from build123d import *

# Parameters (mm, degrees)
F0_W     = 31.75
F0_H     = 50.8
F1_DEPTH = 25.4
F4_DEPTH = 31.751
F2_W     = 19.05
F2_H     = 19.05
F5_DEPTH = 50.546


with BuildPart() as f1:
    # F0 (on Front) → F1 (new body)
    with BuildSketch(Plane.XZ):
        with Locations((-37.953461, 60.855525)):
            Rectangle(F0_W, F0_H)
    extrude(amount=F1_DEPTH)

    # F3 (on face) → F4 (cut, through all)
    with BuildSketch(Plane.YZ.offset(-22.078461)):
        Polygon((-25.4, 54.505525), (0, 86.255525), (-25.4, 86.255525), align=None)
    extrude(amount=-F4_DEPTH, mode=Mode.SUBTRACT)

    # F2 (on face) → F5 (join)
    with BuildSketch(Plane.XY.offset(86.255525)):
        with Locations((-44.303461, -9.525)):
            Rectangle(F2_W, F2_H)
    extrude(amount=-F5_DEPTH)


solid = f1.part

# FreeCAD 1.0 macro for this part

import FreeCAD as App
import Part
import Sketcher
Q = App.Units.Quantity

doc = App.newDocument("Part")
params = doc.addObject("Spreadsheet::Sheet", "Params")
for row, (alias, value) in enumerate([
    ("sketch1_height", "2 in"),
    ("sketch1_width", "1.25 in"),
    ("pad1_length", "1 in"),
    ("sketch2_width", "1 in"),
    ("sketch2_height", "1.25 in"),
    ("sketch3_width", "0.75 in"),
    ("pad2_length", "1.99 in"),
], start=1):
    params.set(f"A{row}", alias)
    params.set(f"B{row}", "=" + value)
    params.setAlias(f"B{row}", alias)

body = doc.addObject("PartDesign::Body", "Body")

# Sketch on XZ plane
sketch1 = doc.addObject("Sketcher::SketchObject", "Sketch")
body.addObject(sketch1)
sketch1.AttachmentSupport = (doc.XZ_Plane, [""])
sketch1.MapMode = "FlatFace"
sketch1.addGeometry([
    Part.LineSegment(App.Vector(-53.828461, 86.255525, 0), App.Vector(-53.828461, 35.455525, 0)),
    Part.LineSegment(App.Vector(-53.828461, 35.455525, 0), App.Vector(-22.078461, 35.455525, 0)),
    Part.LineSegment(App.Vector(-22.078461, 35.455525, 0), App.Vector(-22.078461, 86.255525, 0)),
    Part.LineSegment(App.Vector(-22.078461, 86.255525, 0), App.Vector(-53.828461, 86.255525, 0)),
], False)
sketch1.addConstraint([
    Sketcher.Constraint("Coincident", 0, 2, 1, 1),
    Sketcher.Constraint("Coincident", 1, 2, 2, 1),
    Sketcher.Constraint("Coincident", 2, 2, 3, 1),
    Sketcher.Constraint("Coincident", 3, 2, 0, 1),
    Sketcher.Constraint("Vertical", 0),
    Sketcher.Constraint("Horizontal", 1),
    Sketcher.Constraint("Vertical", 2),
    Sketcher.Constraint("Horizontal", 3),
    Sketcher.Constraint("DistanceY", 0, 2, 0, 1, Q("2 in")),
    Sketcher.Constraint("DistanceX", 1, 1, 1, 2, Q("1.25 in")),
    Sketcher.Constraint("DistanceX", 0, 2, -1, 1, 53.828461),
    Sketcher.Constraint("DistanceY", -1, 1, 0, 2, 35.455525),
])
sketch1.setExpression("Constraints[8]", "Params.sketch1_height")
sketch1.setExpression("Constraints[9]", "Params.sketch1_width")
pad1 = doc.addObject("PartDesign::Pad", "Pad")
body.addObject(pad1)
pad1.Profile = sketch1
pad1.setExpression("Length", "Params.pad1_length")

# Sketch on YZ plane
sketch2 = doc.addObject("Sketcher::SketchObject", "Sketch001")
body.addObject(sketch2)
sketch2.AttachmentSupport = (doc.YZ_Plane, [""])
sketch2.MapMode = "FlatFace"
sketch2.AttachmentOffset = App.Placement(App.Vector(0, 0, -22.078461), App.Rotation())
sketch2.addGeometry([
    Part.LineSegment(App.Vector(-25.4, 54.505525, 0), App.Vector(0, 86.255525, 0)),
    Part.LineSegment(App.Vector(0, 86.255525, 0), App.Vector(-25.4, 86.255525, 0)),
    Part.LineSegment(App.Vector(-25.4, 86.255525, 0), App.Vector(-25.4, 54.505525, 0)),
], False)
sketch2.addConstraint([
    Sketcher.Constraint("Coincident", 0, 2, 1, 1),
    Sketcher.Constraint("Coincident", 1, 2, 2, 1),
    Sketcher.Constraint("Coincident", 2, 2, 0, 1),
    Sketcher.Constraint("Horizontal", 1),
    Sketcher.Constraint("Vertical", 2),
    Sketcher.Constraint("PointOnObject", 0, 2, -2),
    Sketcher.Constraint("DistanceX", 1, 2, 1, 1, Q("1 in")),
    Sketcher.Constraint("DistanceY", 2, 2, 2, 1, Q("1.25 in")),
    Sketcher.Constraint("DistanceY", -1, 1, 0, 2, 86.255525),
])
sketch2.setExpression("Constraints[6]", "Params.sketch2_width")
sketch2.setExpression("Constraints[7]", "Params.sketch2_height")
pocket1 = doc.addObject("PartDesign::Pocket", "Pocket")
body.addObject(pocket1)
pocket1.Profile = sketch2
pocket1.Type = "ThroughAll"

# Sketch on XY plane
sketch3 = doc.addObject("Sketcher::SketchObject", "Sketch002")
body.addObject(sketch3)
sketch3.AttachmentSupport = (doc.XY_Plane, [""])
sketch3.MapMode = "FlatFace"
sketch3.AttachmentOffset = App.Placement(App.Vector(0, 0, 86.255525), App.Rotation())
sketch3.addGeometry([
    Part.LineSegment(App.Vector(-53.828461, 0, 0), App.Vector(-53.828461, -19.05, 0)),
    Part.LineSegment(App.Vector(-53.828461, -19.05, 0), App.Vector(-34.778461, -19.05, 0)),
    Part.LineSegment(App.Vector(-34.778461, -19.05, 0), App.Vector(-34.778461, 0, 0)),
    Part.LineSegment(App.Vector(-34.778461, 0, 0), App.Vector(-53.828461, 0, 0)),
], False)
sketch3.addConstraint([
    Sketcher.Constraint("Coincident", 0, 2, 1, 1),
    Sketcher.Constraint("Coincident", 1, 2, 2, 1),
    Sketcher.Constraint("Coincident", 2, 2, 3, 1),
    Sketcher.Constraint("Coincident", 3, 2, 0, 1),
    Sketcher.Constraint("Vertical", 0),
    Sketcher.Constraint("Horizontal", 1),
    Sketcher.Constraint("Vertical", 2),
    Sketcher.Constraint("Horizontal", 3),
    Sketcher.Constraint("PointOnObject", 2, 2, -1),
    Sketcher.Constraint("Equal", 3, 0),
    Sketcher.Constraint("DistanceX", 1, 1, 1, 2, Q("0.75 in")),
    Sketcher.Constraint("DistanceX", 0, 2, -1, 1, 53.828461),
])
sketch3.setExpression("Constraints[10]", "Params.sketch3_width")
pad2 = doc.addObject("PartDesign::Pad", "Pad001")
body.addObject(pad2)
pad2.Profile = sketch3
pad2.setExpression("Length", "Params.pad2_length")
pad2.Reversed = True

doc.recompute()
